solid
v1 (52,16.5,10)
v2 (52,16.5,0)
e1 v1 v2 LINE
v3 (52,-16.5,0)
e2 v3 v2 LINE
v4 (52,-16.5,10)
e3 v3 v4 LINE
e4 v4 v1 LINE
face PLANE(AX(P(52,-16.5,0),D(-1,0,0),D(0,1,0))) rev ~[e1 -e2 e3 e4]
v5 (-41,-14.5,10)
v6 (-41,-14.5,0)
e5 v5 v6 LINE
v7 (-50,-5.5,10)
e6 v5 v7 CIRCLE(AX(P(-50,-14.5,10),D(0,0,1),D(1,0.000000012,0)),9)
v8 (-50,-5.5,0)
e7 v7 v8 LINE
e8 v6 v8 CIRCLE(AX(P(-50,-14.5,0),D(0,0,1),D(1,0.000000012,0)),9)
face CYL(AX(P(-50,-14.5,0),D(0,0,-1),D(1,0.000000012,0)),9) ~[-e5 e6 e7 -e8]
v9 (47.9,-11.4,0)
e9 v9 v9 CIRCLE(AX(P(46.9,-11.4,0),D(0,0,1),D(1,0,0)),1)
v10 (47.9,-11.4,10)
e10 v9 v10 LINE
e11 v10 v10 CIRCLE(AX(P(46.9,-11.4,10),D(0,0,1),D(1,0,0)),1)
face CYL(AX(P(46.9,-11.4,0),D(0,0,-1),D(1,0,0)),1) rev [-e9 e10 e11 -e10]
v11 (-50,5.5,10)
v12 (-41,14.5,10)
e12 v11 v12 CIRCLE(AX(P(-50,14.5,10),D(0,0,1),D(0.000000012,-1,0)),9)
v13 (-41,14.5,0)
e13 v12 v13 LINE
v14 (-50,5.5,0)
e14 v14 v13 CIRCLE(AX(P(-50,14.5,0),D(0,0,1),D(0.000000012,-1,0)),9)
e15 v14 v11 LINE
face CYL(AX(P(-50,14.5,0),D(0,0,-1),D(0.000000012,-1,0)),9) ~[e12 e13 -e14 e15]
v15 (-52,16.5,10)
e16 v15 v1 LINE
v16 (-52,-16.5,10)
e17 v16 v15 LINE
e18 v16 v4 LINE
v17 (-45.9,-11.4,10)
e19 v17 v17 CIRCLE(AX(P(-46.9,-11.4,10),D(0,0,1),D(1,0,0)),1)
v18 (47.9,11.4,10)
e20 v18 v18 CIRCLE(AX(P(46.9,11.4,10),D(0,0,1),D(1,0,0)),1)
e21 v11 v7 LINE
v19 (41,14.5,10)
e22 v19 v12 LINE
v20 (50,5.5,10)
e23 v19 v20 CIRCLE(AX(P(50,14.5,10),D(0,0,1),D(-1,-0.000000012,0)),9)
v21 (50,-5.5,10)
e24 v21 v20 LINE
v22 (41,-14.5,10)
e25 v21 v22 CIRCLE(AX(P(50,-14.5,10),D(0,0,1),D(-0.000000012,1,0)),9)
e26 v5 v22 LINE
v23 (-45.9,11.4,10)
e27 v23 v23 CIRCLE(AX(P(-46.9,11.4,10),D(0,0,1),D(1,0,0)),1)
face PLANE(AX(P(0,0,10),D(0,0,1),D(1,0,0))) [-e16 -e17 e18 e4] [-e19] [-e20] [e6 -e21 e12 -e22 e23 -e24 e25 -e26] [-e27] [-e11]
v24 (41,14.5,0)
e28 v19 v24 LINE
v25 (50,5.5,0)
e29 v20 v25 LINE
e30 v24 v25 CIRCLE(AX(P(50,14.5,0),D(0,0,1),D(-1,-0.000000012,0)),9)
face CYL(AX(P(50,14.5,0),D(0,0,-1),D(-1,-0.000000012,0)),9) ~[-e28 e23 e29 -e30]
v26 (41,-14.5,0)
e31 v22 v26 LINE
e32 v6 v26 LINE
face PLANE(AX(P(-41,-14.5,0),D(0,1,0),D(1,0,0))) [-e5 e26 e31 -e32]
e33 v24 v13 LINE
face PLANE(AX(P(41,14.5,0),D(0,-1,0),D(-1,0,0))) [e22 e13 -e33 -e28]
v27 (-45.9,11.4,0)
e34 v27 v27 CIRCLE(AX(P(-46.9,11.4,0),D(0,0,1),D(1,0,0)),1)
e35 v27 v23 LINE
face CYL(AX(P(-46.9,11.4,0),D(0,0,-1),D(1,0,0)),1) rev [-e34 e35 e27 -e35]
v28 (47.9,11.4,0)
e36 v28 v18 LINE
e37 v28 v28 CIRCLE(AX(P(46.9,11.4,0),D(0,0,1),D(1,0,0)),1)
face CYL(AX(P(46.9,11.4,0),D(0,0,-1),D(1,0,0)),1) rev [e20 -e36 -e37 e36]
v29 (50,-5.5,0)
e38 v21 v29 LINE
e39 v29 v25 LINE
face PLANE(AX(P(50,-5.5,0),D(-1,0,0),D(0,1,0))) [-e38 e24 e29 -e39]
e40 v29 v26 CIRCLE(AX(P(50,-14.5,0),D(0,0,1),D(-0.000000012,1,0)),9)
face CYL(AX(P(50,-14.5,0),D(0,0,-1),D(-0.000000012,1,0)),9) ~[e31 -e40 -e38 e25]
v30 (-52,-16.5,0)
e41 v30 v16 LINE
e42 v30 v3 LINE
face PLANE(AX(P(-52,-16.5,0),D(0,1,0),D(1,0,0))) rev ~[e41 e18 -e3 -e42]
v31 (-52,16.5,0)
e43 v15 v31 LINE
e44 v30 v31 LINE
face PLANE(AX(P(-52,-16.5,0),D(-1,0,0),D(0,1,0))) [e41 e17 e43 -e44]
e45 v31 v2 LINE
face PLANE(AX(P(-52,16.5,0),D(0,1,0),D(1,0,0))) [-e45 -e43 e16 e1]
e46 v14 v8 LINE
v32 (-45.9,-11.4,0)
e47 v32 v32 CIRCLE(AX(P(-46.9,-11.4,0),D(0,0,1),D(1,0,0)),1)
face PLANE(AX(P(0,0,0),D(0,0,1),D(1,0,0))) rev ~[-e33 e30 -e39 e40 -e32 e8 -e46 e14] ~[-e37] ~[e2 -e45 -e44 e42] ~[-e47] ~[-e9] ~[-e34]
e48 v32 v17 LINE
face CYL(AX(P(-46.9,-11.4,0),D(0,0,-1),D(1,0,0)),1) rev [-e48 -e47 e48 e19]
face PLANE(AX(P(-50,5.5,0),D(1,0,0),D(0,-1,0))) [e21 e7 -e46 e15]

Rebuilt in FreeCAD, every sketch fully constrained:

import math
import FreeCAD as App
import Part
import Sketcher


def add_polygon(sketch, points):
    """Adds a closed chain of lines whose ends are joined by coincident constraints."""
    first, n = sketch.GeometryCount, len(points)
    for a, b in zip(points, points[1:] + points[:1]):
        sketch.addGeometry(Part.LineSegment(App.Vector(*a, 0), App.Vector(*b, 0)), False)
    for i in range(n):
        sketch.addConstraint(Sketcher.Constraint("Coincident", first + i, 2, first + (i + 1) % n, 1))

doc = App.newDocument("Part")
body = doc.addObject("PartDesign::Body", "Body")

sketch1 = body.newObject("Sketcher::SketchObject", "Sketch")
sketch1.AttachmentSupport = (doc.getObject("XY_Plane"), [""])
sketch1.MapMode = "FlatFace"
add_polygon(sketch1, [(-52, 16.5), (-52, -16.5), (52, -16.5), (52, 16.5)])
sketch1.addGeometry(Part.Circle(App.Vector(-46.9, -11.4, 0), App.Vector(0, 0, 1), 1), False)
sketch1.addGeometry(Part.Circle(App.Vector(46.9, -11.4, 0), App.Vector(0, 0, 1), 1), False)
sketch1.addGeometry(Part.Circle(App.Vector(-46.9, 11.4, 0), App.Vector(0, 0, 1), 1), False)
sketch1.addGeometry(Part.LineSegment(App.Vector(-50, -5.5, 0), App.Vector(-50, 5.5, 0)), False)
sketch1.addGeometry(Part.ArcOfCircle(Part.Circle(App.Vector(-50, 14.5, 0), App.Vector(0, 0, 1), 9), math.radians(-89.999999), math.radians(-0.000001)), False)
sketch1.addGeometry(Part.LineSegment(App.Vector(-41, 14.5, 0), App.Vector(41, 14.5, 0)), False)
sketch1.addGeometry(Part.ArcOfCircle(Part.Circle(App.Vector(50, 14.5, 0), App.Vector(0, 0, 1), 9), math.radians(-179.999999), math.radians(-90.000001)), False)
sketch1.addGeometry(Part.LineSegment(App.Vector(50, 5.5, 0), App.Vector(50, -5.5, 0)), False)
sketch1.addGeometry(Part.ArcOfCircle(Part.Circle(App.Vector(50, -14.5, 0), App.Vector(0, 0, 1), 9), math.radians(90.000001), math.radians(179.999999)), False)
sketch1.addGeometry(Part.LineSegment(App.Vector(41, -14.5, 0), App.Vector(-41, -14.5, 0)), False)
sketch1.addGeometry(Part.ArcOfCircle(Part.Circle(App.Vector(-50, -14.5, 0), App.Vector(0, 0, 1), 9), math.radians(0.000001), math.radians(89.999999)), False)
sketch1.addGeometry(Part.Circle(App.Vector(46.9, 11.4, 0), App.Vector(0, 0, 1), 1), False)
sketch1.addConstraint(Sketcher.Constraint("Coincident", 7, 2, 8, 1))
sketch1.addConstraint(Sketcher.Constraint("Coincident", 8, 2, 9, 1))
sketch1.addConstraint(Sketcher.Constraint("Coincident", 9, 2, 10, 1))
sketch1.addConstraint(Sketcher.Constraint("Coincident", 10, 2, 11, 1))
sketch1.addConstraint(Sketcher.Constraint("Coincident", 11, 2, 12, 1))
sketch1.addConstraint(Sketcher.Constraint("Coincident", 12, 2, 13, 1))
sketch1.addConstraint(Sketcher.Constraint("Coincident", 13, 2, 14, 1))
sketch1.addConstraint(Sketcher.Constraint("Coincident", 14, 2, 7, 1))
sketch1.addConstraint(Sketcher.Constraint("Vertical", 0))
sketch1.addConstraint(Sketcher.Constraint("Horizontal", 1))
sketch1.addConstraint(Sketcher.Constraint("Vertical", 2))
sketch1.addConstraint(Sketcher.Constraint("Horizontal", 3))
sketch1.addConstraint(Sketcher.Constraint("Vertical", 7))
sketch1.addConstraint(Sketcher.Constraint("Horizontal", 9))
sketch1.addConstraint(Sketcher.Constraint("Vertical", 11))
sketch1.addConstraint(Sketcher.Constraint("Horizontal", 13))
sketch1.addConstraint(Sketcher.Constraint("Equal", 4, 5))
sketch1.addConstraint(Sketcher.Constraint("Equal", 5, 6))
sketch1.addConstraint(Sketcher.Constraint("Equal", 8, 10))
sketch1.addConstraint(Sketcher.Constraint("Equal", 10, 12))
sketch1.addConstraint(Sketcher.Constraint("Equal", 12, 14))
sketch1.addConstraint(Sketcher.Constraint("Equal", 6, 15))
sketch1.addConstraint(Sketcher.Constraint("Symmetric", 5, 3, 6, 3, -1, 1))
sketch1.addConstraint(Sketcher.Constraint("Symmetric", 8, 3, 12, 3, -1, 1))
sketch1.addConstraint(Sketcher.Constraint("Symmetric", 10, 3, 14, 3, -1, 1))
sketch1.addConstraint(Sketcher.Constraint("Symmetric", 4, 3, 15, 3, -1, 1))
sketch1.addConstraint(Sketcher.Constraint("Symmetric", 0, 2, 2, 2, -1, 1))
sketch1.addConstraint(Sketcher.Constraint("Symmetric", 4, 3, 5, 3, -2))
sketch1.addConstraint(Sketcher.Constraint("Symmetric", 8, 3, 10, 3, -2))
sketch1.addConstraint(Sketcher.Constraint("Horizontal", 10, 3, 8, 2))
sketch1.addConstraint(Sketcher.Constraint("Horizontal", 14, 3, 12, 2))
sketch1.addConstraint(Sketcher.Constraint("Vertical", 14, 3, 7, 2))
sketch1.addConstraint(Sketcher.Constraint("Vertical", 12, 3, 10, 2))
sketch1.addConstraint(Sketcher.Constraint("Diameter", 4, 2.0))
sketch1.addConstraint(Sketcher.Constraint("Radius", 8, 9.0))
sketch1.addConstraint(Sketcher.Constraint("DistanceX", 1, 1, 1, 2, 104.0))
sketch1.addConstraint(Sketcher.Constraint("DistanceX", 9, 1, 9, 2, 82.0))
sketch1.addConstraint(Sketcher.Constraint("DistanceY", 0, 2, 0, 1, 33.0))
sketch1.addConstraint(Sketcher.Constraint("DistanceY", 7, 1, 7, 2, 11.0))
sketch1.addConstraint(Sketcher.Constraint("DistanceX", 4, 3, -1, 1, 46.9))
sketch1.addConstraint(Sketcher.Constraint("DistanceY", 4, 3, -1, 1, 11.4))
pad1 = body.newObject("PartDesign::Pad", "Pad")
pad1.Profile = sketch1
pad1.Length = 2

sketch2 = body.newObject("Sketcher::SketchObject", "Sketch001")
sketch2.AttachmentSupport = (doc.getObject("XY_Plane"), [""])
sketch2.MapMode = "FlatFace"
add_polygon(sketch2, [(-52, 16.5), (-52, -16.5), (52, -16.5), (52, 16.5)])
sketch2.addGeometry(Part.Circle(App.Vector(-46.9, -11.4, 0), App.Vector(0, 0, 1), 1), False)
sketch2.addGeometry(Part.Circle(App.Vector(46.9, -11.4, 0), App.Vector(0, 0, 1), 1), False)
sketch2.addGeometry(Part.Circle(App.Vector(-46.9, 11.4, 0), App.Vector(0, 0, 1), 1), False)
sketch2.addGeometry(Part.LineSegment(App.Vector(-50, -5.5, 0), App.Vector(-50, 5.5, 0)), False)
sketch2.addGeometry(Part.ArcOfCircle(Part.Circle(App.Vector(-50, 14.5, 0), App.Vector(0, 0, 1), 9), math.radians(-89.999999), math.radians(-0.000001)), False)
sketch2.addGeometry(Part.LineSegment(App.Vector(-41, 14.5, 0), App.Vector(41, 14.5, 0)), False)
sketch2.addGeometry(Part.ArcOfCircle(Part.Circle(App.Vector(50, 14.5, 0), App.Vector(0, 0, 1), 9), math.radians(-179.999999), math.radians(-90.000001)), False)
sketch2.addGeometry(Part.LineSegment(App.Vector(50, 5.5, 0), App.Vector(50, -5.5, 0)), False)
sketch2.addGeometry(Part.ArcOfCircle(Part.Circle(App.Vector(50, -14.5, 0), App.Vector(0, 0, 1), 9), math.radians(90.000001), math.radians(179.999999)), False)
sketch2.addGeometry(Part.LineSegment(App.Vector(41, -14.5, 0), App.Vector(-41, -14.5, 0)), False)
sketch2.addGeometry(Part.ArcOfCircle(Part.Circle(App.Vector(-50, -14.5, 0), App.Vector(0, 0, 1), 9), math.radians(0.000001), math.radians(89.999999)), False)
sketch2.addGeometry(Part.Circle(App.Vector(46.9, 11.4, 0), App.Vector(0, 0, 1), 1), False)
sketch2.addConstraint(Sketcher.Constraint("Coincident", 7, 2, 8, 1))
sketch2.addConstraint(Sketcher.Constraint("Coincident", 8, 2, 9, 1))
sketch2.addConstraint(Sketcher.Constraint("Coincident", 9, 2, 10, 1))
sketch2.addConstraint(Sketcher.Constraint("Coincident", 10, 2, 11, 1))
sketch2.addConstraint(Sketcher.Constraint("Coincident", 11, 2, 12, 1))
sketch2.addConstraint(Sketcher.Constraint("Coincident", 12, 2, 13, 1))
sketch2.addConstraint(Sketcher.Constraint("Coincident", 13, 2, 14, 1))
sketch2.addConstraint(Sketcher.Constraint("Coincident", 14, 2, 7, 1))
sketch2.addConstraint(Sketcher.Constraint("Vertical", 0))
sketch2.addConstraint(Sketcher.Constraint("Horizontal", 1))
sketch2.addConstraint(Sketcher.Constraint("Vertical", 2))
sketch2.addConstraint(Sketcher.Constraint("Horizontal", 3))
sketch2.addConstraint(Sketcher.Constraint("Vertical", 7))
sketch2.addConstraint(Sketcher.Constraint("Horizontal", 9))
sketch2.addConstraint(Sketcher.Constraint("Vertical", 11))
sketch2.addConstraint(Sketcher.Constraint("Horizontal", 13))
sketch2.addConstraint(Sketcher.Constraint("Equal", 4, 5))
sketch2.addConstraint(Sketcher.Constraint("Equal", 5, 6))
sketch2.addConstraint(Sketcher.Constraint("Equal", 8, 10))
sketch2.addConstraint(Sketcher.Constraint("Equal", 10, 12))
sketch2.addConstraint(Sketcher.Constraint("Equal", 12, 14))
sketch2.addConstraint(Sketcher.Constraint("Equal", 6, 15))
sketch2.addConstraint(Sketcher.Constraint("Symmetric", 5, 3, 6, 3, -1, 1))
sketch2.addConstraint(Sketcher.Constraint("Symmetric", 8, 3, 12, 3, -1, 1))
sketch2.addConstraint(Sketcher.Constraint("Symmetric", 10, 3, 14, 3, -1, 1))
sketch2.addConstraint(Sketcher.Constraint("Symmetric", 4, 3, 15, 3, -1, 1))
sketch2.addConstraint(Sketcher.Constraint("Symmetric", 0, 2, 2, 2, -1, 1))
sketch2.addConstraint(Sketcher.Constraint("Symmetric", 4, 3, 5, 3, -2))
sketch2.addConstraint(Sketcher.Constraint("Symmetric", 8, 3, 10, 3, -2))
sketch2.addConstraint(Sketcher.Constraint("Horizontal", 10, 3, 8, 2))
sketch2.addConstraint(Sketcher.Constraint("Horizontal", 14, 3, 12, 2))
sketch2.addConstraint(Sketcher.Constraint("Vertical", 14, 3, 7, 2))
sketch2.addConstraint(Sketcher.Constraint("Vertical", 12, 3, 10, 2))
sketch2.addConstraint(Sketcher.Constraint("Diameter", 4, 2.0))
sketch2.addConstraint(Sketcher.Constraint("Radius", 8, 9.0))
sketch2.addConstraint(Sketcher.Constraint("DistanceX", 1, 1, 1, 2, 104.0))
sketch2.addConstraint(Sketcher.Constraint("DistanceX", 9, 1, 9, 2, 82.0))
sketch2.addConstraint(Sketcher.Constraint("DistanceY", 0, 2, 0, 1, 33.0))
sketch2.addConstraint(Sketcher.Constraint("DistanceY", 7, 1, 7, 2, 11.0))
sketch2.addConstraint(Sketcher.Constraint("DistanceX", 4, 3, -1, 1, 46.9))
sketch2.addConstraint(Sketcher.Constraint("DistanceY", 4, 3, -1, 1, 11.4))
pad2 = body.newObject("PartDesign::Pad", "Pad001")
pad2.Profile = sketch2
pad2.Length = 10

doc.recompute()
